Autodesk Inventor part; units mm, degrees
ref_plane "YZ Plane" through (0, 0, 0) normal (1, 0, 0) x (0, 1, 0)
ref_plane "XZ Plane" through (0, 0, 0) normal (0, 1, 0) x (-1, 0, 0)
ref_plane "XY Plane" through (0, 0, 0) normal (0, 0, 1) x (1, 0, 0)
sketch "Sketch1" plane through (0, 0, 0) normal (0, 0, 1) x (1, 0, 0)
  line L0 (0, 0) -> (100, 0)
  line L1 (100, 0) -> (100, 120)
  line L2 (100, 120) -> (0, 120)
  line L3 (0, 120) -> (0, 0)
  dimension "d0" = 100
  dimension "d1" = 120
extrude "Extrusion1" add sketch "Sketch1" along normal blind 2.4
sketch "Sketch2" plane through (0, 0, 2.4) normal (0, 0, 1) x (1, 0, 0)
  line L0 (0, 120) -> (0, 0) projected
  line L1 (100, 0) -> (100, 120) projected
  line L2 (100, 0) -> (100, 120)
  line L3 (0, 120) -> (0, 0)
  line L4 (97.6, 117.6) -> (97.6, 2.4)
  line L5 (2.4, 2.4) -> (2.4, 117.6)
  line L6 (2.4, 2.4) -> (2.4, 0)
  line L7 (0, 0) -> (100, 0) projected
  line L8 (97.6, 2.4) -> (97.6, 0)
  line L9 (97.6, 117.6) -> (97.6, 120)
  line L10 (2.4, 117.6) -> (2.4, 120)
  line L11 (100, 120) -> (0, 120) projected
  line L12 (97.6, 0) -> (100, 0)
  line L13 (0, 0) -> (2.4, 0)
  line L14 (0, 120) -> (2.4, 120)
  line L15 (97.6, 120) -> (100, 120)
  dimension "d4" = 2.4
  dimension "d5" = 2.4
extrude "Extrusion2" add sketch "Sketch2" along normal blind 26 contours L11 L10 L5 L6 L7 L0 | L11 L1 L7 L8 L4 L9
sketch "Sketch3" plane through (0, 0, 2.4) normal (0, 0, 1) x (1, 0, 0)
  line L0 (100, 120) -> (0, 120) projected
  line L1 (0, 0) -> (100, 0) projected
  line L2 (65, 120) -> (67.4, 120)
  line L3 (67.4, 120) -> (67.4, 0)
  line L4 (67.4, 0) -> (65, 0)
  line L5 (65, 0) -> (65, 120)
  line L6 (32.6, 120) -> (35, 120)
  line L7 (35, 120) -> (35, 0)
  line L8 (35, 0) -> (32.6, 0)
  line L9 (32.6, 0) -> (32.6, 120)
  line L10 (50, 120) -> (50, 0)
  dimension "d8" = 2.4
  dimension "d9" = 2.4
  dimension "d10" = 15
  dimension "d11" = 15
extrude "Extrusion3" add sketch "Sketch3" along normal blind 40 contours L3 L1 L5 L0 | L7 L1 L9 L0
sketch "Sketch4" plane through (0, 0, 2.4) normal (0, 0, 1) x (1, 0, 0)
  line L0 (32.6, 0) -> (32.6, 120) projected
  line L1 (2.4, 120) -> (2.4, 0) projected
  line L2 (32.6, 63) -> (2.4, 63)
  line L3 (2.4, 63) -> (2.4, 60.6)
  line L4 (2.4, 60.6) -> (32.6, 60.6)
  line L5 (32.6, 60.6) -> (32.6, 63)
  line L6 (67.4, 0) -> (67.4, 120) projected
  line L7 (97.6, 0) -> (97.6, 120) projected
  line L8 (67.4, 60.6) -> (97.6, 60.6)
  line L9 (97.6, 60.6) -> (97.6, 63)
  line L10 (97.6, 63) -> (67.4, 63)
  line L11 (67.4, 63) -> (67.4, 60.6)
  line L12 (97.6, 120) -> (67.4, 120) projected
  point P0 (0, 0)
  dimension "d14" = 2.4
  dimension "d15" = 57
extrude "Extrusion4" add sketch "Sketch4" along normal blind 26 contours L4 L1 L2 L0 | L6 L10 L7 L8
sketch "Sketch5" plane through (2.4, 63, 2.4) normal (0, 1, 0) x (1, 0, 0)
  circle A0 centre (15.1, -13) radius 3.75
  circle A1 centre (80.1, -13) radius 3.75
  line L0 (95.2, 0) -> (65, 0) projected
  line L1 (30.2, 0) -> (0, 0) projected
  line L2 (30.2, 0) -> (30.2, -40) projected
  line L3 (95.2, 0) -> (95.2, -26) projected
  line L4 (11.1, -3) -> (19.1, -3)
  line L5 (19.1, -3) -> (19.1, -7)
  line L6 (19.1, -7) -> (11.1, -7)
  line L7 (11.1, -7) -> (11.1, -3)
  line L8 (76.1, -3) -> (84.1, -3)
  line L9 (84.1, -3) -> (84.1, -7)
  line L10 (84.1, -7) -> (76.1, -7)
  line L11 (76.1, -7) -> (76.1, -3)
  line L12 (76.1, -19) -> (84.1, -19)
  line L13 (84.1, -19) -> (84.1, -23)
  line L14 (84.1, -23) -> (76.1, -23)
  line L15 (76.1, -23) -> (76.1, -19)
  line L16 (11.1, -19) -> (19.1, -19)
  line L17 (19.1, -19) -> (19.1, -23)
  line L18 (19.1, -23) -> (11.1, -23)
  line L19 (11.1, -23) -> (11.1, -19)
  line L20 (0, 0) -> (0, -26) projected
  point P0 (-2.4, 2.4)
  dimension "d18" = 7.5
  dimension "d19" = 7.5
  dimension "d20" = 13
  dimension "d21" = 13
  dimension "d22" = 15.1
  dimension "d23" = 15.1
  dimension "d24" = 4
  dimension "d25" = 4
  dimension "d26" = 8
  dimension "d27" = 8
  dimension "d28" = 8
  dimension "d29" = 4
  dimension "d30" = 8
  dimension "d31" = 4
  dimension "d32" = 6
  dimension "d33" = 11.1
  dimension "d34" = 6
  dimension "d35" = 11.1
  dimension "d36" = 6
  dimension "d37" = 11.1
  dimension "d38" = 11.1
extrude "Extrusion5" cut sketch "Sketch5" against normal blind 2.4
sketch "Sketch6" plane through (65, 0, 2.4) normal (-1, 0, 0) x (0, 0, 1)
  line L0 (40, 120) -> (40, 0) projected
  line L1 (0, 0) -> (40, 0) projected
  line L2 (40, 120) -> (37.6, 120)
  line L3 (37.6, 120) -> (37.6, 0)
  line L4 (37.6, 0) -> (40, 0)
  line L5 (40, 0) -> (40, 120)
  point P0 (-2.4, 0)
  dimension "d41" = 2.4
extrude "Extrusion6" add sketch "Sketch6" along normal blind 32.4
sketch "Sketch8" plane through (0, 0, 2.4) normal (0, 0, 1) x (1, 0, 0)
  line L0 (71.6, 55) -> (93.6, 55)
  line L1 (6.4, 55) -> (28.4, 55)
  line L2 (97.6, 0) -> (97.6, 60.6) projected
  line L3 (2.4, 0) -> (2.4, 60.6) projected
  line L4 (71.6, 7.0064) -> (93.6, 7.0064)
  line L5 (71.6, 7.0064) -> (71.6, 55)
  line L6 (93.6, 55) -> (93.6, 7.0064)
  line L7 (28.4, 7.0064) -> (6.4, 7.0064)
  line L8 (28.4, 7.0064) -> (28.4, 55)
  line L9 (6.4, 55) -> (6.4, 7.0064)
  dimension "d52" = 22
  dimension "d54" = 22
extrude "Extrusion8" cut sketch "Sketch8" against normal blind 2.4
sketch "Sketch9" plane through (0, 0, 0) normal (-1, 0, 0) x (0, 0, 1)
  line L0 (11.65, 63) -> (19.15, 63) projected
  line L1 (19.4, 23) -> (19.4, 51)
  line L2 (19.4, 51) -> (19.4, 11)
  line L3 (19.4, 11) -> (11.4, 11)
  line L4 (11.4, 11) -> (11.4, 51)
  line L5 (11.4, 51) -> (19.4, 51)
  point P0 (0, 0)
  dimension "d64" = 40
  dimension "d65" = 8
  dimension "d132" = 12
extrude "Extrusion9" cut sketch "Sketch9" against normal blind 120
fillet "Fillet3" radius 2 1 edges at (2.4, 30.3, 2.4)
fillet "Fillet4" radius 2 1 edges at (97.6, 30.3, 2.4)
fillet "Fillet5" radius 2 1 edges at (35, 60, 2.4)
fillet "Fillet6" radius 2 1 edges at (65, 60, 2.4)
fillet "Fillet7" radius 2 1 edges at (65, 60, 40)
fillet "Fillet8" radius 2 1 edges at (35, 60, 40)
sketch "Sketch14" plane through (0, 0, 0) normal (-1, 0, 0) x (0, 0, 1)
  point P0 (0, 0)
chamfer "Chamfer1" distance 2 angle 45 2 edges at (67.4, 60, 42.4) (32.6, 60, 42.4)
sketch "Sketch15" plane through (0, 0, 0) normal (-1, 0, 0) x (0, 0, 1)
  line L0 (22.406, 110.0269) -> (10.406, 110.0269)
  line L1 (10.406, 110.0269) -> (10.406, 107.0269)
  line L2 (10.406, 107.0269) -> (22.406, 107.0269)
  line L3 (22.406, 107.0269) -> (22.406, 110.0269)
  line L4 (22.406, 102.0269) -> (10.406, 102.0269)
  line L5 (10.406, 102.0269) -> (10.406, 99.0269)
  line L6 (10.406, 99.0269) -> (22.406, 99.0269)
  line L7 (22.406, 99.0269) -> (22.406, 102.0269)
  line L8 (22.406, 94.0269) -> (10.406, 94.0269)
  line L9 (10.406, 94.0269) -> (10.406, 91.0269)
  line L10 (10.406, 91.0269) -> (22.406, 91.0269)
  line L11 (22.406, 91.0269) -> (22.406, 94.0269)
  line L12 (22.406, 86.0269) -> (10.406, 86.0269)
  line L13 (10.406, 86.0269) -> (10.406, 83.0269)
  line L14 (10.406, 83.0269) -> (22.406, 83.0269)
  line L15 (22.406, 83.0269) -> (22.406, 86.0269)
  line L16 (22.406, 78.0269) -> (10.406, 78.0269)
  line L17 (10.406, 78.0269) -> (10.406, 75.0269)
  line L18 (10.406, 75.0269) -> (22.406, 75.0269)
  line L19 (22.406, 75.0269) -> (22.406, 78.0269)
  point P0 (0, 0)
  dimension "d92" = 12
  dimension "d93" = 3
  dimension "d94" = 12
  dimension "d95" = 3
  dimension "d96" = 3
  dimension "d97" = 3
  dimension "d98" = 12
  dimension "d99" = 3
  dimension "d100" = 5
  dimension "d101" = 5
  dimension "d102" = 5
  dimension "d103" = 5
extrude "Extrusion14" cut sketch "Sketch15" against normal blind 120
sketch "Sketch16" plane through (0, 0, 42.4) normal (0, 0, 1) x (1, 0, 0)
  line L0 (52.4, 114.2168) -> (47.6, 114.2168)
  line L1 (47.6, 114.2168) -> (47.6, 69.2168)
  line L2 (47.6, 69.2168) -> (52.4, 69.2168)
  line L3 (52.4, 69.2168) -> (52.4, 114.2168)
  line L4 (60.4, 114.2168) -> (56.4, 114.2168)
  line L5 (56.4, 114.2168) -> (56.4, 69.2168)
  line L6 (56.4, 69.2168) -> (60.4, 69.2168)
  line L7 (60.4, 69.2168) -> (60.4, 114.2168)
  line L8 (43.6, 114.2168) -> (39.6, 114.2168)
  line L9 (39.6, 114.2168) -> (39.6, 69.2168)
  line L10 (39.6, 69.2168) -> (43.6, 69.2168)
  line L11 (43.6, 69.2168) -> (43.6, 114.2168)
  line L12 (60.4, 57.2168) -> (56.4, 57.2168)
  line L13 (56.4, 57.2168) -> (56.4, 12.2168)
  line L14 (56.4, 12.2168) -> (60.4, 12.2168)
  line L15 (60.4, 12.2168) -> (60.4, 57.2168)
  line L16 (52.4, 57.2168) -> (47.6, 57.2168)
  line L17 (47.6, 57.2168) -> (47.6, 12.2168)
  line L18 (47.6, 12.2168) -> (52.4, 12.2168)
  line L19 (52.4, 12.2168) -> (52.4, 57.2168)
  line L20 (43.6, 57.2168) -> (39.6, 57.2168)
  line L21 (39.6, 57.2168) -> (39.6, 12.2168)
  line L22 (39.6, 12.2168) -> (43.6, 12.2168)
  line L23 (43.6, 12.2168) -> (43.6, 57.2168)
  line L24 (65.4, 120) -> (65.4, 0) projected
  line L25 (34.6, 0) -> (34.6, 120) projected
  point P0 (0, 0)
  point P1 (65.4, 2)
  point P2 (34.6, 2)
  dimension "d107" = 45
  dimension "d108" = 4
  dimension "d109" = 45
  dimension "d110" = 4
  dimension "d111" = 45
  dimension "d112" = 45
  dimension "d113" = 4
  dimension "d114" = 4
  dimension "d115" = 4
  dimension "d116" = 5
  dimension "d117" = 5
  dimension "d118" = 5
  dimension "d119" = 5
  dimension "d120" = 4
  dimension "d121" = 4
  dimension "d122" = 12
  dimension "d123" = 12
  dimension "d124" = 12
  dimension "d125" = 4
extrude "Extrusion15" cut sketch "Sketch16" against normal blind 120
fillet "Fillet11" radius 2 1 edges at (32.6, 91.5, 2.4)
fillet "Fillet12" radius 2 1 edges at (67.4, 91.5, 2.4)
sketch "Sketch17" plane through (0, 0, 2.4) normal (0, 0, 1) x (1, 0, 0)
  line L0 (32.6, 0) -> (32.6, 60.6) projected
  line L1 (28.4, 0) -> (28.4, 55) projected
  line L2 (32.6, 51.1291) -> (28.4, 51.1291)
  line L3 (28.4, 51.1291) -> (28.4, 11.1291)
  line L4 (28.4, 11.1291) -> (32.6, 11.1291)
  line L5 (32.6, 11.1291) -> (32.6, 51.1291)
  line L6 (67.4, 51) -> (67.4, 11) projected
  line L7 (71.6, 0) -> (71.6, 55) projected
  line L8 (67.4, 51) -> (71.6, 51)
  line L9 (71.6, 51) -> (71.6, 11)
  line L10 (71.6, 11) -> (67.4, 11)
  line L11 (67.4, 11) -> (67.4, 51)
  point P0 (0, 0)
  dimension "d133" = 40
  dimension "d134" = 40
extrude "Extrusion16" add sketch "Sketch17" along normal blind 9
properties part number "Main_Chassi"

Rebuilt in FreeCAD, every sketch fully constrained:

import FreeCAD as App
import Part
import Sketcher
from FreeCAD import Vector
Q = App.Units.Quantity


def edges_at(feature, points):
    """Names of the edges that pass closest to the given points."""
    edges = feature.Shape.Edges
    near = lambda p: min(range(len(edges)), key=lambda i: edges[i].distToShape(Part.Vertex(*p))[0])
    return sorted({f"Edge{near(p) + 1}" for p in points})


def add_polygon(sketch, points):
    """Adds a closed chain of lines whose ends are joined by coincident constraints."""
    first, n = sketch.GeometryCount, len(points)
    for a, b in zip(points, points[1:] + points[:1]):
        sketch.addGeometry(Part.LineSegment(App.Vector(*a, 0), App.Vector(*b, 0)), False)
    for i in range(n):
        sketch.addConstraint(Sketcher.Constraint("Coincident", first + i, 2, first + (i + 1) % n, 1))

doc = App.newDocument("Part")
body = doc.addObject("PartDesign::Body", "Body")

sketch1 = body.newObject("Sketcher::SketchObject", "Sketch")
sketch1.AttachmentSupport = (doc.getObject("XY_Plane"), [""])
sketch1.MapMode = "FlatFace"
add_polygon(sketch1, [(0, 120), (0, 0), (100, 0), (100, 120)])
sketch1.addConstraint(Sketcher.Constraint("Vertical", 0))
sketch1.addConstraint(Sketcher.Constraint("Horizontal", 1))
sketch1.addConstraint(Sketcher.Constraint("Vertical", 2))
sketch1.addConstraint(Sketcher.Constraint("Horizontal", 3))
sketch1.addConstraint(Sketcher.Constraint("Coincident", 0, 2, -1, 1))
sketch1.addConstraint(Sketcher.Constraint("DistanceX", 1, 1, 1, 2, Q("100 mm")))
sketch1.addConstraint(Sketcher.Constraint("DistanceY", 0, 2, 0, 1, Q("120 mm")))
pad1 = body.newObject("PartDesign::Pad", "Pad")
pad1.Profile = sketch1
pad1.Length = 2.4

sketch2 = body.newObject("Sketcher::SketchObject", "Sketch001")
sketch2.AttachmentSupport = (doc.getObject("XY_Plane"), [""])
sketch2.MapMode = "FlatFace"
sketch2.AttachmentOffset = App.Placement(Vector(0, 0, 2.4), App.Rotation())
add_polygon(sketch2, [(2.4, 120), (0, 120), (0, 0), (2.4, 0)])
add_polygon(sketch2, [(100, 120), (97.6, 120), (97.6, 0), (100, 0)])
sketch2.addConstraint(Sketcher.Constraint("Horizontal", 0))
sketch2.addConstraint(Sketcher.Constraint("Vertical", 1))
sketch2.addConstraint(Sketcher.Constraint("Horizontal", 2))
sketch2.addConstraint(Sketcher.Constraint("Vertical", 3))
sketch2.addConstraint(Sketcher.Constraint("Horizontal", 4))
sketch2.addConstraint(Sketcher.Constraint("Vertical", 5))
sketch2.addConstraint(Sketcher.Constraint("Horizontal", 6))
sketch2.addConstraint(Sketcher.Constraint("Vertical", 7))
sketch2.addConstraint(Sketcher.Constraint("Coincident", 1, 2, -1, 1))
sketch2.addConstraint(Sketcher.Constraint("PointOnObject", 5, 2, -1))
sketch2.addConstraint(Sketcher.Constraint("Horizontal", 3, 2, 4, 2))
sketch2.addConstraint(Sketcher.Constraint("Equal", 2, 4))
sketch2.addConstraint(Sketcher.Constraint("DistanceX", 0, 2, 0, 1, Q("2.4 mm")))
sketch2.addConstraint(Sketcher.Constraint("DistanceY", 1, 2, 1, 1, Q("120 mm")))
sketch2.addConstraint(Sketcher.Constraint("DistanceX", -1, 1, 6, 2, Q("100 mm")))
pad2 = body.newObject("PartDesign::Pad", "Pad001")
pad2.Profile = sketch2
pad2.Length = 26

sketch3 = body.newObject("Sketcher::SketchObject", "Sketch002")
sketch3.AttachmentSupport = (doc.getObject("XY_Plane"), [""])
sketch3.MapMode = "FlatFace"
sketch3.AttachmentOffset = App.Placement(Vector(0, 0, 2.4), App.Rotation())
add_polygon(sketch3, [(67.4, 0), (67.4, 120), (65, 120), (65, 0)])
add_polygon(sketch3, [(35, 0), (35, 120), (32.6, 120), (32.6, 0)])
sketch3.addConstraint(Sketcher.Constraint("Vertical", 0))
sketch3.addConstraint(Sketcher.Constraint("Horizontal", 1))
sketch3.addConstraint(Sketcher.Constraint("Vertical", 2))
sketch3.addConstraint(Sketcher.Constraint("Horizontal", 3))
sketch3.addConstraint(Sketcher.Constraint("Vertical", 4))
sketch3.addConstraint(Sketcher.Constraint("Horizontal", 5))
sketch3.addConstraint(Sketcher.Constraint("Vertical", 6))
sketch3.addConstraint(Sketcher.Constraint("Horizontal", 7))
sketch3.addConstraint(Sketcher.Constraint("PointOnObject", 2, 2, -1))
sketch3.addConstraint(Sketcher.Constraint("PointOnObject", 6, 2, -1))
sketch3.addConstraint(Sketcher.Constraint("Horizontal", 1, 2, 4, 2))
sketch3.addConstraint(Sketcher.Constraint("Equal", 3, 5))
sketch3.addConstraint(Sketcher.Constraint("DistanceX", 1, 2, 1, 1, Q("2.4 mm")))
sketch3.addConstraint(Sketcher.Constraint("DistanceY", 0, 1, 0, 2, Q("120 mm")))
sketch3.addConstraint(Sketcher.Constraint("DistanceX", -1, 1, 1, 2, Q("65 mm")))
sketch3.addConstraint(Sketcher.Constraint("DistanceX", -1, 1, 4, 2, Q("35 mm")))
pad3 = body.newObject("PartDesign::Pad", "Pad002")
pad3.Profile = sketch3
pad3.Length = 40

sketch4 = body.newObject("Sketcher::SketchObject", "Sketch003")
sketch4.AttachmentSupport = (doc.getObject("XY_Plane"), [""])
sketch4.MapMode = "FlatFace"
sketch4.AttachmentOffset = App.Placement(Vector(0, 0, 2.4), App.Rotation())
add_polygon(sketch4, [(2.4, 60.6), (32.6, 60.6), (32.6, 63), (2.4, 63)])
add_polygon(sketch4, [(67.4, 63), (67.4, 60.6), (97.6, 60.6), (97.6, 63)])
sketch4.addConstraint(Sketcher.Constraint("Horizontal", 0))
sketch4.addConstraint(Sketcher.Constraint("Vertical", 1))
sketch4.addConstraint(Sketcher.Constraint("Horizontal", 2))
sketch4.addConstraint(Sketcher.Constraint("Vertical", 3))
sketch4.addConstraint(Sketcher.Constraint("Vertical", 4))
sketch4.addConstraint(Sketcher.Constraint("Horizontal", 5))
sketch4.addConstraint(Sketcher.Constraint("Vertical", 6))
sketch4.addConstraint(Sketcher.Constraint("Horizontal", 7))
sketch4.addConstraint(Sketcher.Constraint("Horizontal", 3, 2, 4, 2))
sketch4.addConstraint(Sketcher.Constraint("Horizontal", 2, 2, 6, 2))
sketch4.addConstraint(Sketcher.Constraint("Equal", 2, 5))
sketch4.addConstraint(Sketcher.Constraint("DistanceY", 1, 1, 1, 2, Q("2.4 mm")))
sketch4.addConstraint(Sketcher.Constraint("DistanceX", -1, 1, 2, 2, Q("2.4 mm")))
sketch4.addConstraint(Sketcher.Constraint("DistanceX", 0, 1, 0, 2, Q("30.2 mm")))
sketch4.addConstraint(Sketcher.Constraint("DistanceY", -1, 1, 1, 2, Q("63 mm")))
sketch4.addConstraint(Sketcher.Constraint("DistanceX", 3, 2, 4, 2, Q("65 mm")))
pad4 = body.newObject("PartDesign::Pad", "Pad003")
pad4.Profile = sketch4
pad4.Length = 26

sketch5 = body.newObject("Sketcher::SketchObject", "Sketch004")
sketch5.AttachmentSupport = (doc.getObject("XZ_Plane"), [""])
sketch5.MapMode = "FlatFace"
sketch5.AttachmentOffset = App.Placement(Vector(0, 0, -63), App.Rotation())
sketch5.addGeometry(Part.Circle(Vector(17.5, 15.4, 0), Vector(0, 0, 1), 3.75), False)
sketch5.addGeometry(Part.Circle(Vector(82.5, 15.4, 0), Vector(0, 0, 1), 3.75), False)
add_polygon(sketch5, [(21.5, 5.4), (13.5, 5.4), (13.5, 9.4), (21.5, 9.4)])
add_polygon(sketch5, [(86.5, 5.4), (78.5, 5.4), (78.5, 9.4), (86.5, 9.4)])
add_polygon(sketch5, [(86.5, 21.4), (78.5, 21.4), (78.5, 25.4), (86.5, 25.4)])
add_polygon(sketch5, [(21.5, 21.4), (13.5, 21.4), (13.5, 25.4), (21.5, 25.4)])
sketch5.addConstraint(Sketcher.Constraint("Horizontal", 2))
sketch5.addConstraint(Sketcher.Constraint("Vertical", 3))
sketch5.addConstraint(Sketcher.Constraint("Horizontal", 4))
sketch5.addConstraint(Sketcher.Constraint("Vertical", 5))
sketch5.addConstraint(Sketcher.Constraint("Horizontal", 6))
sketch5.addConstraint(Sketcher.Constraint("Vertical", 7))
sketch5.addConstraint(Sketcher.Constraint("Horizontal", 8))
sketch5.addConstraint(Sketcher.Constraint("Vertical", 9))
sketch5.addConstraint(Sketcher.Constraint("Horizontal", 10))
sketch5.addConstraint(Sketcher.Constraint("Vertical", 11))
sketch5.addConstraint(Sketcher.Constraint("Horizontal", 12))
sketch5.addConstraint(Sketcher.Constraint("Vertical", 13))
sketch5.addConstraint(Sketcher.Constraint("Horizontal", 14))
sketch5.addConstraint(Sketcher.Constraint("Vertical", 15))
sketch5.addConstraint(Sketcher.Constraint("Horizontal", 16))
sketch5.addConstraint(Sketcher.Constraint("Vertical", 17))
sketch5.addConstraint(Sketcher.Constraint("Equal", 0, 1))
sketch5.addConstraint(Sketcher.Constraint("Horizontal", 0, 3, 1, 3))
sketch5.addConstraint(Sketcher.Constraint("Horizontal", 5, 2, 6, 2))
sketch5.addConstraint(Sketcher.Constraint("Horizontal", 4, 2, 7, 2))
sketch5.addConstraint(Sketcher.Constraint("Horizontal", 13, 2, 14, 2))
sketch5.addConstraint(Sketcher.Constraint("Horizontal", 12, 2, 15, 2))
sketch5.addConstraint(Sketcher.Constraint("Vertical", 7, 2, 10, 2))
sketch5.addConstraint(Sketcher.Constraint("Vertical", 9, 2, 12, 2))
sketch5.addConstraint(Sketcher.Constraint("Vertical", 3, 2, 14, 2))
sketch5.addConstraint(Sketcher.Constraint("Vertical", 5, 2, 16, 2))
sketch5.addConstraint(Sketcher.Constraint("Equal", 4, 6))
sketch5.addConstraint(Sketcher.Constraint("Equal", 9, 11))
sketch5.addConstraint(Sketcher.Constraint("Diameter", 0, Q("7.5 mm")))
sketch5.addConstraint(Sketcher.Constraint("DistanceX", 2, 2, 2, 1, Q("8 mm")))
sketch5.addConstraint(Sketcher.Constraint("DistanceY", 3, 1, 3, 2, Q("4 mm")))
sketch5.addConstraint(Sketcher.Constraint("DistanceX", 2, 2, 0, 3, Q("4 mm")))
sketch5.addConstraint(Sketcher.Constraint("DistanceY", 3, 2, 0, 3, Q("6 mm")))
sketch5.addConstraint(Sketcher.Constraint("DistanceX", 6, 2, 1, 3, Q("4 mm")))
sketch5.addConstraint(Sketcher.Constraint("DistanceY", 1, 3, 10, 2, Q("6 mm")))
sketch5.addConstraint(Sketcher.Constraint("DistanceX", 0, 3, 1, 3, Q("65 mm")))
sketch5.addConstraint(Sketcher.Constraint("DistanceX", -1, 1, 0, 3, Q("17.5 mm")))
sketch5.addConstraint(Sketcher.Constraint("DistanceY", -1, 1, 0, 3, Q("15.4 mm")))
pocket1 = body.newObject("PartDesign::Pocket", "Pocket")
pocket1.Profile = sketch5
pocket1.Length = 2.4
pocket1.Reversed = True

sketch6 = body.newObject("Sketcher::SketchObject", "Sketch005")
sketch6.AttachmentSupport = (doc.getObject("YZ_Plane"), [""])
sketch6.MapMode = "FlatFace"
sketch6.AttachmentOffset = App.Placement(Vector(0, 0, 65), App.Rotation())
add_polygon(sketch6, [(0, 42.4), (120, 42.4), (120, 40), (0, 40)])
sketch6.addConstraint(Sketcher.Constraint("Horizontal", 0))
sketch6.addConstraint(Sketcher.Constraint("Vertical", 1))
sketch6.addConstraint(Sketcher.Constraint("Horizontal", 2))
sketch6.addConstraint(Sketcher.Constraint("Vertical", 3))
sketch6.addConstraint(Sketcher.Constraint("PointOnObject", 2, 2, -2))
sketch6.addConstraint(Sketcher.Constraint("DistanceY", 1, 2, 1, 1, Q("2.4 mm")))
sketch6.addConstraint(Sketcher.Constraint("DistanceX", 0, 1, 0, 2, Q("120 mm")))
sketch6.addConstraint(Sketcher.Constraint("DistanceY", -1, 1, 1, 2, Q("40 mm")))
pad5 = body.newObject("PartDesign::Pad", "Pad004")
pad5.Profile = sketch6
pad5.Length = 32.4
pad5.Reversed = True

sketch7 = body.newObject("Sketcher::SketchObject", "Sketch006")
sketch7.AttachmentSupport = (doc.getObject("XY_Plane"), [""])
sketch7.MapMode = "FlatFace"
sketch7.AttachmentOffset = App.Placement(Vector(0, 0, 2.4), App.Rotation())
add_polygon(sketch7, [(93.6, 55), (71.6, 55), (71.6, 7.0064), (93.6, 7.0064)])
add_polygon(sketch7, [(28.4, 55), (6.4, 55), (6.4, 7.0064), (28.4, 7.0064)])
sketch7.addConstraint(Sketcher.Constraint("Horizontal", 0))
sketch7.addConstraint(Sketcher.Constraint("Vertical", 1))
sketch7.addConstraint(Sketcher.Constraint("Horizontal", 2))
sketch7.addConstraint(Sketcher.Constraint("Vertical", 3))
sketch7.addConstraint(Sketcher.Constraint("Horizontal", 4))
sketch7.addConstraint(Sketcher.Constraint("Vertical", 5))
sketch7.addConstraint(Sketcher.Constraint("Horizontal", 6))
sketch7.addConstraint(Sketcher.Constraint("Vertical", 7))
sketch7.addConstraint(Sketcher.Constraint("Horizontal", 3, 2, 4, 2))
sketch7.addConstraint(Sketcher.Constraint("Horizontal", 2, 2, 5, 2))
sketch7.addConstraint(Sketcher.Constraint("Equal", 2, 4))
sketch7.addConstraint(Sketcher.Constraint("DistanceX", 0, 2, 0, 1, Q("22 mm")))
sketch7.addConstraint(Sketcher.Constraint("DistanceY", -1, 1, 0, 2, Q("55 mm")))
sketch7.addConstraint(Sketcher.Constraint("DistanceX", -1, 1, 0, 2, Q("71.6 mm")))
sketch7.addConstraint(Sketcher.Constraint("DistanceX", -1, 1, 4, 2, Q("6.4 mm")))
sketch7.addConstraint(Sketcher.Constraint("DistanceY", 1, 2, 1, 1, Q("47.9936 mm")))
pocket2 = body.newObject("PartDesign::Pocket", "Pocket001")
pocket2.Profile = sketch7
pocket2.Length = 2.4

sketch8 = body.newObject("Sketcher::SketchObject", "Sketch007")
sketch8.AttachmentSupport = (doc.getObject("YZ_Plane"), [""])
sketch8.MapMode = "FlatFace"
add_polygon(sketch8, [(11, 19.4), (51, 19.4), (51, 11.4), (11, 11.4)])
sketch8.addConstraint(Sketcher.Constraint("Horizontal", 0))
sketch8.addConstraint(Sketcher.Constraint("Vertical", 1))
sketch8.addConstraint(Sketcher.Constraint("Horizontal", 2))
sketch8.addConstraint(Sketcher.Constraint("Vertical", 3))
sketch8.addConstraint(Sketcher.Constraint("DistanceX", 0, 1, 0, 2, Q("40 mm")))
sketch8.addConstraint(Sketcher.Constraint("DistanceY", 1, 2, 1, 1, Q("8 mm")))
sketch8.addConstraint(Sketcher.Constraint("DistanceX", -1, 1, 0, 2, Q("51 mm")))
sketch8.addConstraint(Sketcher.Constraint("DistanceY", -1, 1, 0, 2, Q("19.4 mm")))
pocket3 = body.newObject("PartDesign::Pocket", "Pocket002")
pocket3.Profile = sketch8
pocket3.Length = 120
pocket3.Reversed = True
doc.recompute()

fillet = body.newObject("PartDesign::Fillet", "Fillet")
fillet.Base = (pocket3, edges_at(pocket3, [(2.4, 30.3, 2.4)]))
fillet.Radius = 2
doc.recompute()

fillet2 = body.newObject("PartDesign::Fillet", "Fillet001")
fillet2.Base = (fillet, edges_at(fillet, [(97.6, 30.3, 2.4)]))
fillet2.Radius = 2
doc.recompute()

fillet3 = body.newObject("PartDesign::Fillet", "Fillet002")
fillet3.Base = (fillet2, edges_at(fillet2, [(35, 60, 2.4)]))
fillet3.Radius = 2
doc.recompute()

fillet4 = body.newObject("PartDesign::Fillet", "Fillet003")
fillet4.Base = (fillet3, edges_at(fillet3, [(65, 60, 2.4)]))
fillet4.Radius = 2
doc.recompute()

fillet5 = body.newObject("PartDesign::Fillet", "Fillet004")
fillet5.Base = (fillet4, edges_at(fillet4, [(65, 60, 40)]))
fillet5.Radius = 2
doc.recompute()

fillet6 = body.newObject("PartDesign::Fillet", "Fillet005")
fillet6.Base = (fillet5, edges_at(fillet5, [(35, 60, 40)]))
fillet6.Radius = 2
doc.recompute()

chamfer = body.newObject("PartDesign::Chamfer", "Chamfer")
chamfer.Base = (fillet6, edges_at(fillet6, [(67.4, 60, 42.4), (32.6, 60, 42.4)]))
chamfer.Size = 2

sketch9 = body.newObject("Sketcher::SketchObject", "Sketch008")
sketch9.AttachmentSupport = (doc.getObject("YZ_Plane"), [""])
sketch9.MapMode = "FlatFace"
add_polygon(sketch9, [(107.0269, 22.406), (110.0269, 22.406), (110.0269, 10.406), (107.0269, 10.406)])
add_polygon(sketch9, [(99.0269, 22.406), (102.0269, 22.406), (102.0269, 10.406), (99.0269, 10.406)])
add_polygon(sketch9, [(91.0269, 22.406), (94.0269, 22.406), (94.0269, 10.406), (91.0269, 10.406)])
add_polygon(sketch9, [(83.0269, 22.406), (86.0269, 22.406), (86.0269, 10.406), (83.0269, 10.406)])
add_polygon(sketch9, [(75.0269, 22.406), (78.0269, 22.406), (78.0269, 10.406), (75.0269, 10.406)])
sketch9.addConstraint(Sketcher.Constraint("Horizontal", 0))
sketch9.addConstraint(Sketcher.Constraint("Vertical", 1))
sketch9.addConstraint(Sketcher.Constraint("Horizontal", 2))
sketch9.addConstraint(Sketcher.Constraint("Vertical", 3))
sketch9.addConstraint(Sketcher.Constraint("Horizontal", 4))
sketch9.addConstraint(Sketcher.Constraint("Vertical", 5))
sketch9.addConstraint(Sketcher.Constraint("Horizontal", 6))
sketch9.addConstraint(Sketcher.Constraint("Vertical", 7))
sketch9.addConstraint(Sketcher.Constraint("Horizontal", 8))
sketch9.addConstraint(Sketcher.Constraint("Vertical", 9))
sketch9.addConstraint(Sketcher.Constraint("Horizontal", 10))
sketch9.addConstraint(Sketcher.Constraint("Vertical", 11))
sketch9.addConstraint(Sketcher.Constraint("Horizontal", 12))
sketch9.addConstraint(Sketcher.Constraint("Vertical", 13))
sketch9.addConstraint(Sketcher.Constraint("Horizontal", 14))
sketch9.addConstraint(Sketcher.Constraint("Vertical", 15))
sketch9.addConstraint(Sketcher.Constraint("Horizontal", 16))
sketch9.addConstraint(Sketcher.Constraint("Vertical", 17))
sketch9.addConstraint(Sketcher.Constraint("Horizontal", 18))
sketch9.addConstraint(Sketcher.Constraint("Vertical", 19))
sketch9.addConstraint(Sketcher.Constraint("Horizontal", 3, 2, 4, 2))
sketch9.addConstraint(Sketcher.Constraint("Horizontal", 2, 2, 5, 2))
sketch9.addConstraint(Sketcher.Constraint("Horizontal", 7, 2, 8, 2))
sketch9.addConstraint(Sketcher.Constraint("Horizontal", 6, 2, 9, 2))
sketch9.addConstraint(Sketcher.Constraint("Horizontal", 11, 2, 12, 2))
sketch9.addConstraint(Sketcher.Constraint("Horizontal", 10, 2, 13, 2))
sketch9.addConstraint(Sketcher.Constraint("Horizontal", 15, 2, 16, 2))
sketch9.addConstraint(Sketcher.Constraint("Horizontal", 14, 2, 17, 2))
sketch9.addConstraint(Sketcher.Constraint("Equal", 2, 4))
sketch9.addConstraint(Sketcher.Constraint("Equal", 6, 8))
sketch9.addConstraint(Sketcher.Constraint("Equal", 10, 12))
sketch9.addConstraint(Sketcher.Constraint("Equal", 14, 16))
sketch9.addConstraint(Sketcher.Constraint("DistanceX", 0, 1, 0, 2, Q("3 mm")))
sketch9.addConstraint(Sketcher.Constraint("DistanceY", 1, 2, 1, 1, Q("12 mm")))
sketch9.addConstraint(Sketcher.Constraint("DistanceX", 4, 2, 3, 2, Q("5 mm")))
sketch9.addConstraint(Sketcher.Constraint("DistanceX", 8, 2, 7, 2, Q("5 mm")))
sketch9.addConstraint(Sketcher.Constraint("DistanceX", 12, 2, 11, 2, Q("5 mm")))
sketch9.addConstraint(Sketcher.Constraint("DistanceX", 16, 2, 15, 2, Q("5 mm")))
sketch9.addConstraint(Sketcher.Constraint("DistanceX", -1, 1, 0, 2, Q("110.027 mm")))
sketch9.addConstraint(Sketcher.Constraint("DistanceY", -1, 1, 0, 2, Q("22.406 mm")))
pocket4 = body.newObject("PartDesign::Pocket", "Pocket003")
pocket4.Profile = sketch9
pocket4.Length = 120
pocket4.Reversed = True

sketch10 = body.newObject("Sketcher::SketchObject", "Sketch009")
sketch10.AttachmentSupport = (doc.getObject("XY_Plane"), [""])
sketch10.MapMode = "FlatFace"
sketch10.AttachmentOffset = App.Placement(Vector(0, 0, 42.4), App.Rotation())
add_polygon(sketch10, [(52.4, 69.2168), (52.4, 114.2168), (47.6, 114.2168), (47.6, 69.2168)])
add_polygon(sketch10, [(60.4, 69.2168), (60.4, 114.2168), (56.4, 114.2168), (56.4, 69.2168)])
add_polygon(sketch10, [(43.6, 69.2168), (43.6, 114.2168), (39.6, 114.2168), (39.6, 69.2168)])
add_polygon(sketch10, [(60.4, 12.2168), (60.4, 57.2168), (56.4, 57.2168), (56.4, 12.2168)])
add_polygon(sketch10, [(52.4, 12.2168), (52.4, 57.2168), (47.6, 57.2168), (47.6, 12.2168)])
add_polygon(sketch10, [(43.6, 12.2168), (43.6, 57.2168), (39.6, 57.2168), (39.6, 12.2168)])
sketch10.addConstraint(Sketcher.Constraint("Vertical", 0))
sketch10.addConstraint(Sketcher.Constraint("Horizontal", 1))
sketch10.addConstraint(Sketcher.Constraint("Vertical", 2))
sketch10.addConstraint(Sketcher.Constraint("Horizontal", 3))
sketch10.addConstraint(Sketcher.Constraint("Vertical", 4))
sketch10.addConstraint(Sketcher.Constraint("Horizontal", 5))
sketch10.addConstraint(Sketcher.Constraint("Vertical", 6))
sketch10.addConstraint(Sketcher.Constraint("Horizontal", 7))
sketch10.addConstraint(Sketcher.Constraint("Vertical", 8))
sketch10.addConstraint(Sketcher.Constraint("Horizontal", 9))
sketch10.addConstraint(Sketcher.Constraint("Vertical", 10))
sketch10.addConstraint(Sketcher.Constraint("Horizontal", 11))
sketch10.addConstraint(Sketcher.Constraint("Vertical", 12))
sketch10.addConstraint(Sketcher.Constraint("Horizontal", 13))
sketch10.addConstraint(Sketcher.Constraint("Vertical", 14))
sketch10.addConstraint(Sketcher.Constraint("Horizontal", 15))
sketch10.addConstraint(Sketcher.Constraint("Vertical", 16))
sketch10.addConstraint(Sketcher.Constraint("Horizontal", 17))
sketch10.addConstraint(Sketcher.Constraint("Vertical", 18))
sketch10.addConstraint(Sketcher.Constraint("Horizontal", 19))
sketch10.addConstraint(Sketcher.Constraint("Vertical", 20))
sketch10.addConstraint(Sketcher.Constraint("Horizontal", 21))
sketch10.addConstraint(Sketcher.Constraint("Vertical", 22))
sketch10.addConstraint(Sketcher.Constraint("Horizontal", 23))
sketch10.addConstraint(Sketcher.Constraint("Horizontal", 1, 2, 4, 2))
sketch10.addConstraint(Sketcher.Constraint("Horizontal", 3, 2, 6, 2))
sketch10.addConstraint(Sketcher.Constraint("Horizontal", 5, 2, 8, 2))
sketch10.addConstraint(Sketcher.Constraint("Horizontal", 7, 2, 10, 2))
sketch10.addConstraint(Sketcher.Constraint("Horizontal", 13, 2, 16, 2))
sketch10.addConstraint(Sketcher.Constraint("Horizontal", 15, 2, 18, 2))
sketch10.addConstraint(Sketcher.Constraint("Horizontal", 17, 2, 20, 2))
sketch10.addConstraint(Sketcher.Constraint("Horizontal", 19, 2, 22, 2))
sketch10.addConstraint(Sketcher.Constraint("Vertical", 7, 2, 12, 2))
sketch10.addConstraint(Sketcher.Constraint("Vertical", 6, 2, 13, 2))
sketch10.addConstraint(Sketcher.Constraint("Vertical", 3, 2, 16, 2))
sketch10.addConstraint(Sketcher.Constraint("Vertical", 2, 2, 17, 2))
sketch10.addConstraint(Sketcher.Constraint("Vertical", 11, 2, 20, 2))
sketch10.addConstraint(Sketcher.Constraint("Vertical", 10, 2, 21, 2))
sketch10.addConstraint(Sketcher.Constraint("Equal", 7, 9))
sketch10.addConstraint(Sketcher.Constraint("Equal", 10, 12))
sketch10.addConstraint(Sketcher.Constraint("DistanceX", 5, 2, 5, 1, Q("4 mm")))
sketch10.addConstraint(Sketcher.Constraint("DistanceY", 0, 1, 0, 2, Q("45 mm")))
sketch10.addConstraint(Sketcher.Constraint("DistanceX", 0, 2, 5, 2, Q("4 mm")))
sketch10.addConstraint(Sketcher.Constraint("DistanceX", 8, 2, 1, 2, Q("4 mm")))
sketch10.addConstraint(Sketcher.Constraint("DistanceY", 12, 2, 7, 2, Q("12 mm")))
sketch10.addConstraint(Sketcher.Constraint("DistanceX", 1, 2, 1, 1, Q("4.8 mm")))
sketch10.addConstraint(Sketcher.Constraint("DistanceX", -1, 1, 0, 2, Q("52.4 mm")))
sketch10.addConstraint(Sketcher.Constraint("DistanceY", -1, 1, 0, 2, Q("114.2168 mm")))
pocket5 = body.newObject("PartDesign::Pocket", "Pocket004")
pocket5.Profile = sketch10
pocket5.Length = 120
doc.recompute()

fillet7 = body.newObject("PartDesign::Fillet", "Fillet006")
fillet7.Base = (pocket5, edges_at(pocket5, [(32.6, 91.5, 2.4)]))
fillet7.Radius = 2
doc.recompute()

fillet8 = body.newObject("PartDesign::Fillet", "Fillet007")
fillet8.Base = (fillet7, edges_at(fillet7, [(67.4, 91.5, 2.4)]))
fillet8.Radius = 2

sketch11 = body.newObject("Sketcher::SketchObject", "Sketch010")
sketch11.AttachmentSupport = (doc.getObject("XY_Plane"), [""])
sketch11.MapMode = "FlatFace"
sketch11.AttachmentOffset = App.Placement(Vector(0, 0, 2.4), App.Rotation())
add_polygon(sketch11, [(28.4, 11.1291), (32.6, 11.1291), (32.6, 51.1291), (28.4, 51.1291)])
add_polygon(sketch11, [(71.6, 51), (67.4, 51), (67.4, 11), (71.6, 11)])
sketch11.addConstraint(Sketcher.Constraint("Horizontal", 0))
sketch11.addConstraint(Sketcher.Constraint("Vertical", 1))
sketch11.addConstraint(Sketcher.Constraint("Horizontal", 2))
sketch11.addConstraint(Sketcher.Constraint("Vertical", 3))
sketch11.addConstraint(Sketcher.Constraint("Horizontal", 4))
sketch11.addConstraint(Sketcher.Constraint("Vertical", 5))
sketch11.addConstraint(Sketcher.Constraint("Horizontal", 6))
sketch11.addConstraint(Sketcher.Constraint("Vertical", 7))
sketch11.addConstraint(Sketcher.Constraint("Equal", 2, 4))
sketch11.addConstraint(Sketcher.Constraint("Equal", 3, 5))
sketch11.addConstraint(Sketcher.Constraint("DistanceY", 1, 1, 1, 2, Q("40 mm")))
sketch11.addConstraint(Sketcher.Constraint("DistanceX", 0, 1, 0, 2, Q("4.2 mm")))
sketch11.addConstraint(Sketcher.Constraint("DistanceY", -1, 1, 4, 2, Q("51 mm")))
sketch11.addConstraint(Sketcher.Constraint("DistanceX", 2, 2, 4, 2, Q("39 mm")))
sketch11.addConstraint(Sketcher.Constraint("DistanceX", -1, 1, 0, 2, Q("32.6 mm")))
sketch11.addConstraint(Sketcher.Constraint("DistanceY", -1, 1, 0, 2, Q("11.129 mm")))
pad6 = body.newObject("PartDesign::Pad", "Pad005")
pad6.Profile = sketch11
pad6.Length = 9

doc.recompute()
